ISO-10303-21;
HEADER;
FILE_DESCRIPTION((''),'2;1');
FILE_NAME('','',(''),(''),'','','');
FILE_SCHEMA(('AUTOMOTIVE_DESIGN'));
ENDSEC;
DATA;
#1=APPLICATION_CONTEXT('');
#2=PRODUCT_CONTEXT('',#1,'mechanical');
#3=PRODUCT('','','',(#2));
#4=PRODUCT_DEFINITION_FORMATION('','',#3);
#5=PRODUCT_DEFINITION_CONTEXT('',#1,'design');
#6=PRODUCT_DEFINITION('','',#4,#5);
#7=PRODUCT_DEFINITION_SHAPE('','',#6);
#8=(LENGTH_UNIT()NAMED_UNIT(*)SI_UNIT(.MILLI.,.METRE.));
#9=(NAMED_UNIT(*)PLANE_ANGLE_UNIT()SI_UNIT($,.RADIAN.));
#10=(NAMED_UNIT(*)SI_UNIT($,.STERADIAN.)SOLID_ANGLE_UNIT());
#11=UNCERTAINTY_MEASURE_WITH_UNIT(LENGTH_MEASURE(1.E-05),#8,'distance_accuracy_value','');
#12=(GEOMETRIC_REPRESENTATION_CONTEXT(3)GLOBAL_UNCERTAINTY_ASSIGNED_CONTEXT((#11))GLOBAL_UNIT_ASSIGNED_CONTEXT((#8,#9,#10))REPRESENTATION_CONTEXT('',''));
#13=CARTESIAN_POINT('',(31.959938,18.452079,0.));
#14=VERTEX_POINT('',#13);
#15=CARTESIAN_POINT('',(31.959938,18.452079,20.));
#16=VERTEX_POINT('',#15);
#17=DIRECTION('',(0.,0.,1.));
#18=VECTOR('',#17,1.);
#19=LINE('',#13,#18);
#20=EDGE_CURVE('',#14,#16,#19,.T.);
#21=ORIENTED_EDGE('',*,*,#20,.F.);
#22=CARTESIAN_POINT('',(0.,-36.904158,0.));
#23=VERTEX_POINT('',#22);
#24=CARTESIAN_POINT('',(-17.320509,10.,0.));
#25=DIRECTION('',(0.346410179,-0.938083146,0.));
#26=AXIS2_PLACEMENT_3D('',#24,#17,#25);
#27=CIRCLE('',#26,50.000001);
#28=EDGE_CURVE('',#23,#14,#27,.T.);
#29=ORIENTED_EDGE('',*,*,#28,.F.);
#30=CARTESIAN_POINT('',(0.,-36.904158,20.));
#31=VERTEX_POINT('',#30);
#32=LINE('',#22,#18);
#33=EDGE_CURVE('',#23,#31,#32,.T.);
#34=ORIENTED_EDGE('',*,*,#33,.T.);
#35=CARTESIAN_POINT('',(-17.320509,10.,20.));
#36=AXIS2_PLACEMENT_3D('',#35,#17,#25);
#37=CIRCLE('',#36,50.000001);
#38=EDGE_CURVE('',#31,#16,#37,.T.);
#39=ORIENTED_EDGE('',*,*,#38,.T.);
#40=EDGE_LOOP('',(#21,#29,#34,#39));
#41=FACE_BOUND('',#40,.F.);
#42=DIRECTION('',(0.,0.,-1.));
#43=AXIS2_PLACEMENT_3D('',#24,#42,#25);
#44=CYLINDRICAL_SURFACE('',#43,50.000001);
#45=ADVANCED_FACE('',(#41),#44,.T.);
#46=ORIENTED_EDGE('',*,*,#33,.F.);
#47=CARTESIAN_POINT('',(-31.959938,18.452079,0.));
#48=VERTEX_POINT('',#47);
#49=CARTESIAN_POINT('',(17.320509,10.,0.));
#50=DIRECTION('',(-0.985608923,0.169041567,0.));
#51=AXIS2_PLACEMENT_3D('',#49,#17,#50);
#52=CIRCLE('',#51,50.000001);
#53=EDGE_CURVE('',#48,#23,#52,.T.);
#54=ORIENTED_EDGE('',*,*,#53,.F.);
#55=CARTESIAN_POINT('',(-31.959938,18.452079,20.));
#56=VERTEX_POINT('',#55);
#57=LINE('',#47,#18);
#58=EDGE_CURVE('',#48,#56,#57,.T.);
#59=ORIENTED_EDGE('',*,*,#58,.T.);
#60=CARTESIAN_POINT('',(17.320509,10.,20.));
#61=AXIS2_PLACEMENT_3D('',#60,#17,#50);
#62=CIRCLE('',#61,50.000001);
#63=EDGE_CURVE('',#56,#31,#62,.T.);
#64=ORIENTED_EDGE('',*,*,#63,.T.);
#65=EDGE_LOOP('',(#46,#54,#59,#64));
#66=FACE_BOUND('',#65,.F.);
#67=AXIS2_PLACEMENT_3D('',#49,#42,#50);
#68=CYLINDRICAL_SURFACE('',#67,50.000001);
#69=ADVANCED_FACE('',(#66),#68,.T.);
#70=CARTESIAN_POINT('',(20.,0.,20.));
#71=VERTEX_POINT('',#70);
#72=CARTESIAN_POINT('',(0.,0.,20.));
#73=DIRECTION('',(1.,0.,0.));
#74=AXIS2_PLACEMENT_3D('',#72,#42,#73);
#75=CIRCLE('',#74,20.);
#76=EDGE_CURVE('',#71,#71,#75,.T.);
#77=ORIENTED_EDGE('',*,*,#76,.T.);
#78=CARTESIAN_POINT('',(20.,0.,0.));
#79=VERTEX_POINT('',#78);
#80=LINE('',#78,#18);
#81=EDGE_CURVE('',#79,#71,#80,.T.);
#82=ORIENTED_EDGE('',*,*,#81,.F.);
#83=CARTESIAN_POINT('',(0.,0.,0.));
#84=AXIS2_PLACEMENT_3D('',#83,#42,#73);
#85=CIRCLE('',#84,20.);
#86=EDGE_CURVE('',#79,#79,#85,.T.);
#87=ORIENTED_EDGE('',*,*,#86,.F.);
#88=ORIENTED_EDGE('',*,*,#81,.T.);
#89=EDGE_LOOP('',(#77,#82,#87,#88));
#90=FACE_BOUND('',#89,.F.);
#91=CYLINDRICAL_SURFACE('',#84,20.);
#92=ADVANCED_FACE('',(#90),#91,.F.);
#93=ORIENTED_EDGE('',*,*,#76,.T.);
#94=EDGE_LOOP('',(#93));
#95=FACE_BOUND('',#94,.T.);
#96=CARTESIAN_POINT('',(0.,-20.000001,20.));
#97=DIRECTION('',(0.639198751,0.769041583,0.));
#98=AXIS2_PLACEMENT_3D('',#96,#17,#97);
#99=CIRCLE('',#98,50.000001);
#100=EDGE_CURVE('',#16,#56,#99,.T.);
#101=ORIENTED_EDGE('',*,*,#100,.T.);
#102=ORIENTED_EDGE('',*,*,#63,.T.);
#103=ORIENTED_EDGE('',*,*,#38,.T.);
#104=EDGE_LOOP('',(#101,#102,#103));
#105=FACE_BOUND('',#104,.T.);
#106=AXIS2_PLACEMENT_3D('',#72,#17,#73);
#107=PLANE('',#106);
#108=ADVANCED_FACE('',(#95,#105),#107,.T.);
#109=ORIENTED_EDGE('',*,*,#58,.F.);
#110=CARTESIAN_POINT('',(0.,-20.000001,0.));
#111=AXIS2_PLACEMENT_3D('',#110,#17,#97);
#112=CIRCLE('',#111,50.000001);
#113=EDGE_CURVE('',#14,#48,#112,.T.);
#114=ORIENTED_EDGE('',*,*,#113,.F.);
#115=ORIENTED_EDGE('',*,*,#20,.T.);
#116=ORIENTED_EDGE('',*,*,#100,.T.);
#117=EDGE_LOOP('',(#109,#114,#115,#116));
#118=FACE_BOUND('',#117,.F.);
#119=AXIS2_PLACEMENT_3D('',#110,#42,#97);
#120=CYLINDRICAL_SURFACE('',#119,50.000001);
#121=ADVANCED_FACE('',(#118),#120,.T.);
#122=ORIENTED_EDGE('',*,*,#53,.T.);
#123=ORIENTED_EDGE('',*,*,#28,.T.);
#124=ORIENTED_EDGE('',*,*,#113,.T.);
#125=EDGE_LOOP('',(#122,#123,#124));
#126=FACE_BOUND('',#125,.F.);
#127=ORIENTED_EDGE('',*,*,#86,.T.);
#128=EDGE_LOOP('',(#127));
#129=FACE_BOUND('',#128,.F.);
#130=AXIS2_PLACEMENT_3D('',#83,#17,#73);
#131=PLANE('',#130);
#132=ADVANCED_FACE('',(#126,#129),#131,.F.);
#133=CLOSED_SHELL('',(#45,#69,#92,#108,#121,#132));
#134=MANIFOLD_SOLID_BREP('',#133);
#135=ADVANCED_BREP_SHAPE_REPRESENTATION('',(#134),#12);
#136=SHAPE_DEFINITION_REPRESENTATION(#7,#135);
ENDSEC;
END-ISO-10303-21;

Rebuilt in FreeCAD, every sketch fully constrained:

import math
import FreeCAD as App
import Part
import Sketcher
from FreeCAD import Vector
Q = App.Units.Quantity

doc = App.newDocument("Part")
params = doc.addObject("Spreadsheet::Sheet", "Params")
for row, (alias, value) in enumerate([
    ("sketch1_radius", "50.000001 mm"),
    ("pad1_length", "20 mm"),
    ("sketch2_diameter", "40 mm"),
    ("pocket1_length", "20 mm"),
], start=1):
    params.set(f"A{row}", alias)
    params.set(f"B{row}", "=" + value)
    params.setAlias(f"B{row}", alias)

body = doc.addObject("PartDesign::Body", "Body")

# Sketch on XY plane
sketch1 = body.newObject("Sketcher::SketchObject", "Sketch")
sketch1.AttachmentSupport = (doc.getObject("XY_Plane"), [""])
sketch1.MapMode = "FlatFace"
sketch1.addGeometry([
    Part.ArcOfCircle(Part.Circle(Vector(0, -20.000001, 0), Vector(0, 0, 1), 50.000001), math.radians(50.267902), math.radians(129.732098)),
    Part.ArcOfCircle(Part.Circle(Vector(17.320509, 10, 0), Vector(0, 0, 1), 50.000001), math.radians(170.267902), math.radians(249.732098)),
    Part.ArcOfCircle(Part.Circle(Vector(-17.320509, 10, 0), Vector(0, 0, 1), 50.000001), math.radians(-69.732098), math.radians(9.732098)),
], False)
sketch1.addConstraint([
    Sketcher.Constraint("Coincident", 0, 2, 1, 1),
    Sketcher.Constraint("Coincident", 1, 2, 2, 1),
    Sketcher.Constraint("Coincident", 2, 2, 0, 1),
    Sketcher.Constraint("Equal", 0, 1),
    Sketcher.Constraint("Equal", 1, 2),
    Sketcher.Constraint("Symmetric", 1, 3, 2, 3, -2),
    Sketcher.Constraint("PointOnObject", 0, 3, -2),
    Sketcher.Constraint("Radius", 0, Q("50.000001 mm")),
    Sketcher.Constraint("DistanceY", 0, 3, -1, 1, Q("20.000001 mm")),
    Sketcher.Constraint("DistanceY", -1, 1, 1, 3, Q("10 mm")),
    Sketcher.Constraint("DistanceX", -1, 1, 1, 3, Q("17.320509 mm")),
])
sketch1.setExpression("Constraints[7]", "Params.sketch1_radius")
pad1 = body.newObject("PartDesign::Pad", "Pad")
pad1.Profile = sketch1
pad1.setExpression("Length", "Params.pad1_length")

# Sketch on XY plane
sketch2 = body.newObject("Sketcher::SketchObject", "Sketch001")
sketch2.AttachmentSupport = (doc.getObject("XY_Plane"), [""])
sketch2.MapMode = "FlatFace"
sketch2.addGeometry(Part.Circle(Vector(0, 0, 0), Vector(0, 0, 1), 20), False)
sketch2.addConstraint([
    Sketcher.Constraint("Coincident", 0, 3, -1, 1),
    Sketcher.Constraint("Diameter", 0, Q("40 mm")),
])
sketch2.setExpression("Constraints[1]", "Params.sketch2_diameter")
pocket1 = body.newObject("PartDesign::Pocket", "Pocket")
pocket1.Profile = sketch2
pocket1.setExpression("Length", "Params.pocket1_length")
pocket1.Reversed = True

doc.recompute()
